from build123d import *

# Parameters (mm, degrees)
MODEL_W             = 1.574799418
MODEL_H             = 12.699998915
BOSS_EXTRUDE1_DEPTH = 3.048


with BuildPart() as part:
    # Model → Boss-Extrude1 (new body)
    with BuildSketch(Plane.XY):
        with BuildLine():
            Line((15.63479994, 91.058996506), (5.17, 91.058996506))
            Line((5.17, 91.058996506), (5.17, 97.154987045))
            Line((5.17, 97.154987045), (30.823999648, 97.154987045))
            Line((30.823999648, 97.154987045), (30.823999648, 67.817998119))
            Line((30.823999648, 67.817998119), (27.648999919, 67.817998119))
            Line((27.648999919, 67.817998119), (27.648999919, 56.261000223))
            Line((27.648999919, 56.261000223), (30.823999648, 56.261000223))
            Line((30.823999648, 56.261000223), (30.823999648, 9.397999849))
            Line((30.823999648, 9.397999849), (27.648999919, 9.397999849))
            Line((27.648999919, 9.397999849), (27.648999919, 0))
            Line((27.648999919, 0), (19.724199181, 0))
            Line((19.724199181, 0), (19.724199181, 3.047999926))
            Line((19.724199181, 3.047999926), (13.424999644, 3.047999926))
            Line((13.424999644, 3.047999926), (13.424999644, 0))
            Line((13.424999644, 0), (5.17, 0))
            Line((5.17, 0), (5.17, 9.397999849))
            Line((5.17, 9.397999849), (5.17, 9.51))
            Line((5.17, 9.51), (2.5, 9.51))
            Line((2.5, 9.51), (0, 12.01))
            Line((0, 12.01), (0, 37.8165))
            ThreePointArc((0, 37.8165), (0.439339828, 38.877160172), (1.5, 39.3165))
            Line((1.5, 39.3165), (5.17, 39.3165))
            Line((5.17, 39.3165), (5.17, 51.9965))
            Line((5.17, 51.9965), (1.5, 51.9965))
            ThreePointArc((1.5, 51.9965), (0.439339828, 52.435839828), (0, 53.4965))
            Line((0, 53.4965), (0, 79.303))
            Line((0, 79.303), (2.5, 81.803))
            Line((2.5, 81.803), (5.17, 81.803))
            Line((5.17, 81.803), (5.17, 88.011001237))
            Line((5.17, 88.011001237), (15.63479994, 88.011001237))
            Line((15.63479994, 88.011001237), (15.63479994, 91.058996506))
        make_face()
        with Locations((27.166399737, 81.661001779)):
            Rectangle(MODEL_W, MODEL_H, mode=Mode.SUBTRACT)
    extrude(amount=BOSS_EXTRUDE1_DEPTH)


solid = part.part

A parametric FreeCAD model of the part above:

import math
import FreeCAD as App
import Part
import Sketcher

V = App.Vector
Q = App.Units.Quantity

doc = App.newDocument("Part")
body = doc.addObject("PartDesign::Body", "Body")

# Sketch on XY plane
sketch1 = body.newObject("Sketcher::SketchObject", "Sketch")
sketch1.AttachmentSupport = (doc.getObject("XY_Plane"), [""])
sketch1.MapMode = "FlatFace"
sketch1.addGeometry(Part.LineSegment(V(5.2, 91.1, 0), V(15.6, 91.1, 0)), False)
sketch1.addGeometry(Part.LineSegment(V(15.6, 91.1, 0), V(15.6, 88, 0)), False)
sketch1.addGeometry(Part.LineSegment(V(15.6, 88, 0), V(5.2, 88, 0)), False)
sketch1.addGeometry(Part.LineSegment(V(5.2, 88, 0), V(5.2, 81.8, 0)), False)
sketch1.addGeometry(Part.LineSegment(V(5.2, 81.8, 0), V(2.5, 81.8, 0)), False)
sketch1.addGeometry(Part.LineSegment(V(2.5, 81.8, 0), V(0, 79.3, 0)), False)
sketch1.addGeometry(Part.LineSegment(V(0, 79.3, 0), V(0, 53.5, 0)), False)
sketch1.addGeometry(Part.ArcOfCircle(Part.Circle(V(1.5, 53.5, 0), V(0, 0, 1), 1.5), math.radians(180), math.radians(270)), False)
sketch1.addGeometry(Part.LineSegment(V(1.5, 52, 0), V(5.2, 52, 0)), False)
sketch1.addGeometry(Part.LineSegment(V(5.2, 52, 0), V(5.2, 39.3, 0)), False)
sketch1.addGeometry(Part.LineSegment(V(5.2, 39.3, 0), V(1.5, 39.3, 0)), False)
sketch1.addGeometry(Part.ArcOfCircle(Part.Circle(V(1.5, 37.8, 0), V(0, 0, 1), 1.5), math.radians(90), math.radians(180)), False)
sketch1.addGeometry(Part.LineSegment(V(0, 37.8, 0), V(0, 12, 0)), False)
sketch1.addGeometry(Part.LineSegment(V(0, 12, 0), V(2.5, 9.5, 0)), False)
sketch1.addGeometry(Part.LineSegment(V(2.5, 9.5, 0), V(5.2, 9.5, 0)), False)
sketch1.addGeometry(Part.LineSegment(V(5.2, 9.5, 0), V(5.2, 0, 0)), False)
sketch1.addGeometry(Part.LineSegment(V(5.2, 0, 0), V(13.4, 0, 0)), False)
sketch1.addGeometry(Part.LineSegment(V(13.4, 0, 0), V(13.4, 3, 0)), False)
sketch1.addGeometry(Part.LineSegment(V(13.4, 3, 0), V(19.7, 3, 0)), False)
sketch1.addGeometry(Part.LineSegment(V(19.7, 3, 0), V(19.7, 0, 0)), False)
sketch1.addGeometry(Part.LineSegment(V(19.7, 0, 0), V(27.6, 0, 0)), False)
sketch1.addGeometry(Part.LineSegment(V(27.6, 0, 0), V(27.6, 9.4, 0)), False)
sketch1.addGeometry(Part.LineSegment(V(27.6, 9.4, 0), V(30.8, 9.4, 0)), False)
sketch1.addGeometry(Part.LineSegment(V(30.8, 9.4, 0), V(30.8, 56.3, 0)), False)
sketch1.addGeometry(Part.LineSegment(V(30.8, 56.3, 0), V(27.6, 56.3, 0)), False)
sketch1.addGeometry(Part.LineSegment(V(27.6, 56.3, 0), V(27.6, 67.8, 0)), False)
sketch1.addGeometry(Part.LineSegment(V(27.6, 67.8, 0), V(30.8, 67.8, 0)), False)
sketch1.addGeometry(Part.LineSegment(V(30.8, 67.8, 0), V(30.8, 97.2, 0)), False)
sketch1.addGeometry(Part.LineSegment(V(30.8, 97.2, 0), V(5.2, 97.2, 0)), False)
sketch1.addGeometry(Part.LineSegment(V(5.2, 97.2, 0), V(5.2, 91.1, 0)), False)
sketch1.addGeometry(Part.LineSegment(V(26.4, 75.3, 0), V(26.4, 88, 0)), False)
sketch1.addGeometry(Part.LineSegment(V(26.4, 88, 0), V(28, 88, 0)), False)
sketch1.addGeometry(Part.LineSegment(V(28, 88, 0), V(28, 75.3, 0)), False)
sketch1.addGeometry(Part.LineSegment(V(28, 75.3, 0), V(26.4, 75.3, 0)), False)
sketch1.addConstraint(Sketcher.Constraint("Coincident", 0, 2, 1, 1))
sketch1.addConstraint(Sketcher.Constraint("Coincident", 1, 2, 2, 1))
sketch1.addConstraint(Sketcher.Constraint("Coincident", 2, 2, 3, 1))
sketch1.addConstraint(Sketcher.Constraint("Coincident", 3, 2, 4, 1))
sketch1.addConstraint(Sketcher.Constraint("Coincident", 4, 2, 5, 1))
sketch1.addConstraint(Sketcher.Constraint("Coincident", 5, 2, 6, 1))
sketch1.addConstraint(Sketcher.Constraint("Tangent", 6, 2, 7, 1))
sketch1.addConstraint(Sketcher.Constraint("Tangent", 7, 2, 8, 1))
sketch1.addConstraint(Sketcher.Constraint("Coincident", 8, 2, 9, 1))
sketch1.addConstraint(Sketcher.Constraint("Coincident", 9, 2, 10, 1))
sketch1.addConstraint(Sketcher.Constraint("Tangent", 10, 2, 11, 1))
sketch1.addConstraint(Sketcher.Constraint("Tangent", 11, 2, 12, 1))
sketch1.addConstraint(Sketcher.Constraint("Coincident", 12, 2, 13, 1))
sketch1.addConstraint(Sketcher.Constraint("Coincident", 13, 2, 14, 1))
sketch1.addConstraint(Sketcher.Constraint("Coincident", 14, 2, 15, 1))
sketch1.addConstraint(Sketcher.Constraint("Coincident", 15, 2, 16, 1))
sketch1.addConstraint(Sketcher.Constraint("Coincident", 16, 2, 17, 1))
sketch1.addConstraint(Sketcher.Constraint("Coincident", 17, 2, 18, 1))
sketch1.addConstraint(Sketcher.Constraint("Coincident", 18, 2, 19, 1))
sketch1.addConstraint(Sketcher.Constraint("Coincident", 19, 2, 20, 1))
sketch1.addConstraint(Sketcher.Constraint("Coincident", 20, 2, 21, 1))
sketch1.addConstraint(Sketcher.Constraint("Coincident", 21, 2, 22, 1))
sketch1.addConstraint(Sketcher.Constraint("Coincident", 22, 2, 23, 1))
sketch1.addConstraint(Sketcher.Constraint("Coincident", 23, 2, 24, 1))
sketch1.addConstraint(Sketcher.Constraint("Coincident", 24, 2, 25, 1))
sketch1.addConstraint(Sketcher.Constraint("Coincident", 25, 2, 26, 1))
sketch1.addConstraint(Sketcher.Constraint("Coincident", 26, 2, 27, 1))
sketch1.addConstraint(Sketcher.Constraint("Coincident", 27, 2, 28, 1))
sketch1.addConstraint(Sketcher.Constraint("Coincident", 28, 2, 29, 1))
sketch1.addConstraint(Sketcher.Constraint("Coincident", 29, 2, 0, 1))
sketch1.addConstraint(Sketcher.Constraint("Coincident", 30, 2, 31, 1))
sketch1.addConstraint(Sketcher.Constraint("Coincident", 31, 2, 32, 1))
sketch1.addConstraint(Sketcher.Constraint("Coincident", 32, 2, 33, 1))
sketch1.addConstraint(Sketcher.Constraint("Coincident", 33, 2, 30, 1))
sketch1.addConstraint(Sketcher.Constraint("Horizontal", 0))
sketch1.addConstraint(Sketcher.Constraint("Vertical", 1))
sketch1.addConstraint(Sketcher.Constraint("Horizontal", 2))
sketch1.addConstraint(Sketcher.Constraint("Vertical", 3))
sketch1.addConstraint(Sketcher.Constraint("Horizontal", 4))
sketch1.addConstraint(Sketcher.Constraint("Vertical", 6))
sketch1.addConstraint(Sketcher.Constraint("Horizontal", 8))
sketch1.addConstraint(Sketcher.Constraint("Vertical", 9))
sketch1.addConstraint(Sketcher.Constraint("Horizontal", 10))
sketch1.addConstraint(Sketcher.Constraint("Vertical", 12))
sketch1.addConstraint(Sketcher.Constraint("Horizontal", 14))
sketch1.addConstraint(Sketcher.Constraint("Vertical", 15))
sketch1.addConstraint(Sketcher.Constraint("Horizontal", 16))
sketch1.addConstraint(Sketcher.Constraint("Vertical", 17))
sketch1.addConstraint(Sketcher.Constraint("Horizontal", 18))
sketch1.addConstraint(Sketcher.Constraint("Vertical", 19))
sketch1.addConstraint(Sketcher.Constraint("Horizontal", 20))
sketch1.addConstraint(Sketcher.Constraint("Vertical", 21))
sketch1.addConstraint(Sketcher.Constraint("Horizontal", 22))
sketch1.addConstraint(Sketcher.Constraint("Vertical", 23))
sketch1.addConstraint(Sketcher.Constraint("Horizontal", 24))
sketch1.addConstraint(Sketcher.Constraint("Vertical", 25))
sketch1.addConstraint(Sketcher.Constraint("Horizontal", 26))
sketch1.addConstraint(Sketcher.Constraint("Vertical", 27))
sketch1.addConstraint(Sketcher.Constraint("Horizontal", 28))
sketch1.addConstraint(Sketcher.Constraint("Vertical", 29))
sketch1.addConstraint(Sketcher.Constraint("Vertical", 30))
sketch1.addConstraint(Sketcher.Constraint("Horizontal", 31))
sketch1.addConstraint(Sketcher.Constraint("Vertical", 32))
sketch1.addConstraint(Sketcher.Constraint("Horizontal", 33))
sketch1.addConstraint(Sketcher.Constraint("Equal", 7, 11))
sketch1.addConstraint(Sketcher.Constraint("PointOnObject", 5, 2, -2))
sketch1.addConstraint(Sketcher.Constraint("PointOnObject", 11, 2, -2))
sketch1.addConstraint(Sketcher.Constraint("PointOnObject", 15, 2, -1))
sketch1.addConstraint(Sketcher.Constraint("PointOnObject", 19, 2, -1))
sketch1.addConstraint(Sketcher.Constraint("Perpendicular", 5, 13))
sketch1.addConstraint(Sketcher.Constraint("Horizontal", 2, 2, 30, 2))
sketch1.addConstraint(Sketcher.Constraint("Vertical", 3, 2, 8, 2))
sketch1.addConstraint(Sketcher.Constraint("Vertical", 4, 2, 13, 2))
sketch1.addConstraint(Sketcher.Constraint("Vertical", 9, 2, 14, 2))
sketch1.addConstraint(Sketcher.Constraint("Vertical", 21, 2, 24, 2))
sketch1.addConstraint(Sketcher.Constraint("Vertical", 23, 2, 26, 2))
sketch1.addConstraint(Sketcher.Constraint("Vertical", 15, 2, 28, 2))
sketch1.addConstraint(Sketcher.Constraint("Equal", 6, 12))
sketch1.addConstraint(Sketcher.Constraint("Equal", 5, 13))
sketch1.addConstraint(Sketcher.Constraint("DistanceY", 30, 1, 30, 2, Q("0.5 in")))
sketch1.addConstraint(Sketcher.Constraint("DistanceX", 28, 2, 28, 1, Q("1.01 in")))
sketch1.addConstraint(Sketcher.Constraint("DistanceY", 1, 2, 1, 1, Q("0.1199998 in")))
sketch1.addConstraint(Sketcher.Constraint("DistanceY", 17, 1, 17, 2, Q("0.12 in")))
sketch1.addConstraint(Sketcher.Constraint("DistanceY", 21, 1, 21, 2, Q("0.37 in")))
sketch1.addConstraint(Sketcher.Constraint("DistanceX", 0, 1, 0, 2, Q("0.412 in")))
sketch1.addConstraint(Sketcher.Constraint("DistanceX", 16, 1, 16, 2, Q("0.325 in")))
sketch1.addConstraint(Sketcher.Constraint("DistanceX", 18, 1, 18, 2, Q("0.248 in")))
sketch1.addConstraint(Sketcher.Constraint("DistanceX", 20, 1, 20, 2, Q("0.312 in")))
sketch1.addConstraint(Sketcher.Constraint("DistanceX", 31, 1, 31, 2, Q("0.062 in")))
sketch1.addConstraint(Sketcher.Constraint("DistanceY", 23, 1, 23, 2, Q("1.845 in")))
sketch1.addConstraint(Sketcher.Constraint("DistanceY", 25, 1, 25, 2, Q("0.4549999 in")))
sketch1.addConstraint(Sketcher.Constraint("Radius", 7, 1.5))
sketch1.addConstraint(Sketcher.Constraint("DistanceX", 30, 2, 25, 2, Q("0.05 in")))
sketch1.addConstraint(Sketcher.Constraint("DistanceY", -1, 1, 0, 2, Q("3.5849999 in")))
sketch1.addConstraint(Sketcher.Constraint("DistanceX", 4, 2, 4, 1, 2.67))
sketch1.addConstraint(Sketcher.Constraint("DistanceX", 8, 1, 8, 2, 3.67))
sketch1.addConstraint(Sketcher.Constraint("DistanceY", 3, 2, 3, 1, 6.208001))
sketch1.addConstraint(Sketcher.Constraint("DistanceY", 6, 2, 6, 1, 25.8065))
sketch1.addConstraint(Sketcher.Constraint("DistanceY", 9, 2, 9, 1, 12.68))
sketch1.addConstraint(Sketcher.Constraint("DistanceY", 27, 1, 27, 2, 29.336989))
pad1 = body.newObject("PartDesign::Pad", "Pad")
pad1.Profile = sketch1
pad1.Length = Q("0.12 in")

doc.recompute()
